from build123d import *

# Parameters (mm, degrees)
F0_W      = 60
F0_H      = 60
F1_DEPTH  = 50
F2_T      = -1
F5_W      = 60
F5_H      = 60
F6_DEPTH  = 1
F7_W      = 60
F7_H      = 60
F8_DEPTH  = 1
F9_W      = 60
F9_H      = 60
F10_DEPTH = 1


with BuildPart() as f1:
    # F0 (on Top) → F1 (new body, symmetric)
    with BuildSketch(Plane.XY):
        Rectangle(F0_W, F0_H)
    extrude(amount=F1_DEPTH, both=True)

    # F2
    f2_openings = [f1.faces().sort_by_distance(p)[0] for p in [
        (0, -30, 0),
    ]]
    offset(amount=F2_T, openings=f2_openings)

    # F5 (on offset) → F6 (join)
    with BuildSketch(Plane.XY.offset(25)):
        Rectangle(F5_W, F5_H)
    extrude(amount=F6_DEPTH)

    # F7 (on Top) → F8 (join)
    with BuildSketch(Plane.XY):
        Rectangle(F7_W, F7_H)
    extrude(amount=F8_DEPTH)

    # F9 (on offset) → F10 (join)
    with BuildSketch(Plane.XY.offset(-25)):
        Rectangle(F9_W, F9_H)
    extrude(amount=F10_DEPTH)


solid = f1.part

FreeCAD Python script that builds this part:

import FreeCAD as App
import Part
import Sketcher
Q = App.Units.Quantity


def faces_at(feature, points):
    """Names of the faces that lie closest to the given points."""
    faces = feature.Shape.Faces
    near = lambda p: min(range(len(faces)), key=lambda i: faces[i].distToShape(Part.Vertex(*p))[0])
    return sorted({f"Face{near(p) + 1}" for p in points})


def add_polygon(sketch, points):
    """Adds a closed chain of lines whose ends are joined by coincident constraints."""
    first, n = sketch.GeometryCount, len(points)
    for a, b in zip(points, points[1:] + points[:1]):
        sketch.addGeometry(Part.LineSegment(App.Vector(*a, 0), App.Vector(*b, 0)), False)
    for i in range(n):
        sketch.addConstraint(Sketcher.Constraint("Coincident", first + i, 2, first + (i + 1) % n, 1))

doc = App.newDocument("Part")
params = doc.addObject("Spreadsheet::Sheet", "Params")
for row, (alias, value) in enumerate([
    ("sketch1_width", "60 mm"),
    ("pad1_length", "100 mm"),
    ("thickness_wall", "1 mm"),
    ("sketch2_width", "60 mm"),
    ("pad2_length", "1 mm"),
    ("sketch3_width", "60 mm"),
    ("pad3_length", "1 mm"),
    ("sketch4_width", "60 mm"),
    ("pad4_length", "1 mm"),
], start=1):
    params.set(f"A{row}", alias)
    params.set(f"B{row}", "=" + value)
    params.setAlias(f"B{row}", alias)

body = doc.addObject("PartDesign::Body", "Body")

sketch1 = body.newObject("Sketcher::SketchObject", "Sketch")
sketch1.AttachmentSupport = (doc.getObject("XY_Plane"), [""])
sketch1.MapMode = "FlatFace"
add_polygon(sketch1, [(-30, 30), (-30, -30), (30, -30), (30, 30)])
sketch1.addConstraint(Sketcher.Constraint("Vertical", 0))
sketch1.addConstraint(Sketcher.Constraint("Horizontal", 1))
sketch1.addConstraint(Sketcher.Constraint("Vertical", 2))
sketch1.addConstraint(Sketcher.Constraint("Horizontal", 3))
sketch1.addConstraint(Sketcher.Constraint("Symmetric", 0, 2, 2, 2, -1, 1))
sketch1.addConstraint(Sketcher.Constraint("Equal", 3, 0))
sketch1.addConstraint(Sketcher.Constraint("DistanceX", 1, 1, 1, 2, Q("60 mm")))
sketch1.setExpression("Constraints[10]", "Params.sketch1_width")
pad1 = body.newObject("PartDesign::Pad", "Pad")
pad1.Profile = sketch1
pad1.setExpression("Length", "Params.pad1_length")
pad1.Midplane = True
doc.recompute()

thickness = body.newObject("PartDesign::Thickness", "Thickness")
thickness.Base = (pad1, faces_at(pad1, [(0, -30, 0)]))
thickness.setExpression("Value", "Params.thickness_wall")
thickness.Reversed = True
thickness.Join = "Arc"

sketch2 = body.newObject("Sketcher::SketchObject", "Sketch001")
sketch2.AttachmentSupport = (doc.getObject("XY_Plane"), [""])
sketch2.MapMode = "FlatFace"
sketch2.AttachmentOffset = App.Placement(App.Vector(0, 0, 25), App.Rotation())
add_polygon(sketch2, [(-30, 30), (-30, -30), (30, -30), (30, 30)])
sketch2.addConstraint(Sketcher.Constraint("Vertical", 0))
sketch2.addConstraint(Sketcher.Constraint("Horizontal", 1))
sketch2.addConstraint(Sketcher.Constraint("Vertical", 2))
sketch2.addConstraint(Sketcher.Constraint("Horizontal", 3))
sketch2.addConstraint(Sketcher.Constraint("Symmetric", 0, 2, 2, 2, -1, 1))
sketch2.addConstraint(Sketcher.Constraint("Equal", 3, 0))
sketch2.addConstraint(Sketcher.Constraint("DistanceX", 1, 1, 1, 2, Q("60 mm")))
sketch2.setExpression("Constraints[10]", "Params.sketch2_width")
pad2 = body.newObject("PartDesign::Pad", "Pad001")
pad2.Profile = sketch2
pad2.setExpression("Length", "Params.pad2_length")

sketch3 = body.newObject("Sketcher::SketchObject", "Sketch002")
sketch3.AttachmentSupport = (doc.getObject("XY_Plane"), [""])
sketch3.MapMode = "FlatFace"
add_polygon(sketch3, [(-30, 30), (-30, -30), (30, -30), (30, 30)])
sketch3.addConstraint(Sketcher.Constraint("Vertical", 0))
sketch3.addConstraint(Sketcher.Constraint("Horizontal", 1))
sketch3.addConstraint(Sketcher.Constraint("Vertical", 2))
sketch3.addConstraint(Sketcher.Constraint("Horizontal", 3))
sketch3.addConstraint(Sketcher.Constraint("Symmetric", 0, 2, 2, 2, -1, 1))
sketch3.addConstraint(Sketcher.Constraint("Equal", 3, 0))
sketch3.addConstraint(Sketcher.Constraint("DistanceX", 1, 1, 1, 2, Q("60 mm")))
sketch3.setExpression("Constraints[10]", "Params.sketch3_width")
pad3 = body.newObject("PartDesign::Pad", "Pad002")
pad3.Profile = sketch3
pad3.setExpression("Length", "Params.pad3_length")

sketch4 = body.newObject("Sketcher::SketchObject", "Sketch003")
sketch4.AttachmentSupport = (doc.getObject("XY_Plane"), [""])
sketch4.MapMode = "FlatFace"
sketch4.AttachmentOffset = App.Placement(App.Vector(0, 0, -25), App.Rotation())
add_polygon(sketch4, [(-30, 30), (-30, -30), (30, -30), (30, 30)])
sketch4.addConstraint(Sketcher.Constraint("Vertical", 0))
sketch4.addConstraint(Sketcher.Constraint("Horizontal", 1))
sketch4.addConstraint(Sketcher.Constraint("Vertical", 2))
sketch4.addConstraint(Sketcher.Constraint("Horizontal", 3))
sketch4.addConstraint(Sketcher.Constraint("Symmetric", 0, 2, 2, 2, -1, 1))
sketch4.addConstraint(Sketcher.Constraint("Equal", 3, 0))
sketch4.addConstraint(Sketcher.Constraint("DistanceX", 1, 1, 1, 2, Q("60 mm")))
sketch4.setExpression("Constraints[10]", "Params.sketch4_width")
pad4 = body.newObject("PartDesign::Pad", "Pad003")
pad4.Profile = sketch4
pad4.setExpression("Length", "Params.pad4_length")

doc.recompute()
